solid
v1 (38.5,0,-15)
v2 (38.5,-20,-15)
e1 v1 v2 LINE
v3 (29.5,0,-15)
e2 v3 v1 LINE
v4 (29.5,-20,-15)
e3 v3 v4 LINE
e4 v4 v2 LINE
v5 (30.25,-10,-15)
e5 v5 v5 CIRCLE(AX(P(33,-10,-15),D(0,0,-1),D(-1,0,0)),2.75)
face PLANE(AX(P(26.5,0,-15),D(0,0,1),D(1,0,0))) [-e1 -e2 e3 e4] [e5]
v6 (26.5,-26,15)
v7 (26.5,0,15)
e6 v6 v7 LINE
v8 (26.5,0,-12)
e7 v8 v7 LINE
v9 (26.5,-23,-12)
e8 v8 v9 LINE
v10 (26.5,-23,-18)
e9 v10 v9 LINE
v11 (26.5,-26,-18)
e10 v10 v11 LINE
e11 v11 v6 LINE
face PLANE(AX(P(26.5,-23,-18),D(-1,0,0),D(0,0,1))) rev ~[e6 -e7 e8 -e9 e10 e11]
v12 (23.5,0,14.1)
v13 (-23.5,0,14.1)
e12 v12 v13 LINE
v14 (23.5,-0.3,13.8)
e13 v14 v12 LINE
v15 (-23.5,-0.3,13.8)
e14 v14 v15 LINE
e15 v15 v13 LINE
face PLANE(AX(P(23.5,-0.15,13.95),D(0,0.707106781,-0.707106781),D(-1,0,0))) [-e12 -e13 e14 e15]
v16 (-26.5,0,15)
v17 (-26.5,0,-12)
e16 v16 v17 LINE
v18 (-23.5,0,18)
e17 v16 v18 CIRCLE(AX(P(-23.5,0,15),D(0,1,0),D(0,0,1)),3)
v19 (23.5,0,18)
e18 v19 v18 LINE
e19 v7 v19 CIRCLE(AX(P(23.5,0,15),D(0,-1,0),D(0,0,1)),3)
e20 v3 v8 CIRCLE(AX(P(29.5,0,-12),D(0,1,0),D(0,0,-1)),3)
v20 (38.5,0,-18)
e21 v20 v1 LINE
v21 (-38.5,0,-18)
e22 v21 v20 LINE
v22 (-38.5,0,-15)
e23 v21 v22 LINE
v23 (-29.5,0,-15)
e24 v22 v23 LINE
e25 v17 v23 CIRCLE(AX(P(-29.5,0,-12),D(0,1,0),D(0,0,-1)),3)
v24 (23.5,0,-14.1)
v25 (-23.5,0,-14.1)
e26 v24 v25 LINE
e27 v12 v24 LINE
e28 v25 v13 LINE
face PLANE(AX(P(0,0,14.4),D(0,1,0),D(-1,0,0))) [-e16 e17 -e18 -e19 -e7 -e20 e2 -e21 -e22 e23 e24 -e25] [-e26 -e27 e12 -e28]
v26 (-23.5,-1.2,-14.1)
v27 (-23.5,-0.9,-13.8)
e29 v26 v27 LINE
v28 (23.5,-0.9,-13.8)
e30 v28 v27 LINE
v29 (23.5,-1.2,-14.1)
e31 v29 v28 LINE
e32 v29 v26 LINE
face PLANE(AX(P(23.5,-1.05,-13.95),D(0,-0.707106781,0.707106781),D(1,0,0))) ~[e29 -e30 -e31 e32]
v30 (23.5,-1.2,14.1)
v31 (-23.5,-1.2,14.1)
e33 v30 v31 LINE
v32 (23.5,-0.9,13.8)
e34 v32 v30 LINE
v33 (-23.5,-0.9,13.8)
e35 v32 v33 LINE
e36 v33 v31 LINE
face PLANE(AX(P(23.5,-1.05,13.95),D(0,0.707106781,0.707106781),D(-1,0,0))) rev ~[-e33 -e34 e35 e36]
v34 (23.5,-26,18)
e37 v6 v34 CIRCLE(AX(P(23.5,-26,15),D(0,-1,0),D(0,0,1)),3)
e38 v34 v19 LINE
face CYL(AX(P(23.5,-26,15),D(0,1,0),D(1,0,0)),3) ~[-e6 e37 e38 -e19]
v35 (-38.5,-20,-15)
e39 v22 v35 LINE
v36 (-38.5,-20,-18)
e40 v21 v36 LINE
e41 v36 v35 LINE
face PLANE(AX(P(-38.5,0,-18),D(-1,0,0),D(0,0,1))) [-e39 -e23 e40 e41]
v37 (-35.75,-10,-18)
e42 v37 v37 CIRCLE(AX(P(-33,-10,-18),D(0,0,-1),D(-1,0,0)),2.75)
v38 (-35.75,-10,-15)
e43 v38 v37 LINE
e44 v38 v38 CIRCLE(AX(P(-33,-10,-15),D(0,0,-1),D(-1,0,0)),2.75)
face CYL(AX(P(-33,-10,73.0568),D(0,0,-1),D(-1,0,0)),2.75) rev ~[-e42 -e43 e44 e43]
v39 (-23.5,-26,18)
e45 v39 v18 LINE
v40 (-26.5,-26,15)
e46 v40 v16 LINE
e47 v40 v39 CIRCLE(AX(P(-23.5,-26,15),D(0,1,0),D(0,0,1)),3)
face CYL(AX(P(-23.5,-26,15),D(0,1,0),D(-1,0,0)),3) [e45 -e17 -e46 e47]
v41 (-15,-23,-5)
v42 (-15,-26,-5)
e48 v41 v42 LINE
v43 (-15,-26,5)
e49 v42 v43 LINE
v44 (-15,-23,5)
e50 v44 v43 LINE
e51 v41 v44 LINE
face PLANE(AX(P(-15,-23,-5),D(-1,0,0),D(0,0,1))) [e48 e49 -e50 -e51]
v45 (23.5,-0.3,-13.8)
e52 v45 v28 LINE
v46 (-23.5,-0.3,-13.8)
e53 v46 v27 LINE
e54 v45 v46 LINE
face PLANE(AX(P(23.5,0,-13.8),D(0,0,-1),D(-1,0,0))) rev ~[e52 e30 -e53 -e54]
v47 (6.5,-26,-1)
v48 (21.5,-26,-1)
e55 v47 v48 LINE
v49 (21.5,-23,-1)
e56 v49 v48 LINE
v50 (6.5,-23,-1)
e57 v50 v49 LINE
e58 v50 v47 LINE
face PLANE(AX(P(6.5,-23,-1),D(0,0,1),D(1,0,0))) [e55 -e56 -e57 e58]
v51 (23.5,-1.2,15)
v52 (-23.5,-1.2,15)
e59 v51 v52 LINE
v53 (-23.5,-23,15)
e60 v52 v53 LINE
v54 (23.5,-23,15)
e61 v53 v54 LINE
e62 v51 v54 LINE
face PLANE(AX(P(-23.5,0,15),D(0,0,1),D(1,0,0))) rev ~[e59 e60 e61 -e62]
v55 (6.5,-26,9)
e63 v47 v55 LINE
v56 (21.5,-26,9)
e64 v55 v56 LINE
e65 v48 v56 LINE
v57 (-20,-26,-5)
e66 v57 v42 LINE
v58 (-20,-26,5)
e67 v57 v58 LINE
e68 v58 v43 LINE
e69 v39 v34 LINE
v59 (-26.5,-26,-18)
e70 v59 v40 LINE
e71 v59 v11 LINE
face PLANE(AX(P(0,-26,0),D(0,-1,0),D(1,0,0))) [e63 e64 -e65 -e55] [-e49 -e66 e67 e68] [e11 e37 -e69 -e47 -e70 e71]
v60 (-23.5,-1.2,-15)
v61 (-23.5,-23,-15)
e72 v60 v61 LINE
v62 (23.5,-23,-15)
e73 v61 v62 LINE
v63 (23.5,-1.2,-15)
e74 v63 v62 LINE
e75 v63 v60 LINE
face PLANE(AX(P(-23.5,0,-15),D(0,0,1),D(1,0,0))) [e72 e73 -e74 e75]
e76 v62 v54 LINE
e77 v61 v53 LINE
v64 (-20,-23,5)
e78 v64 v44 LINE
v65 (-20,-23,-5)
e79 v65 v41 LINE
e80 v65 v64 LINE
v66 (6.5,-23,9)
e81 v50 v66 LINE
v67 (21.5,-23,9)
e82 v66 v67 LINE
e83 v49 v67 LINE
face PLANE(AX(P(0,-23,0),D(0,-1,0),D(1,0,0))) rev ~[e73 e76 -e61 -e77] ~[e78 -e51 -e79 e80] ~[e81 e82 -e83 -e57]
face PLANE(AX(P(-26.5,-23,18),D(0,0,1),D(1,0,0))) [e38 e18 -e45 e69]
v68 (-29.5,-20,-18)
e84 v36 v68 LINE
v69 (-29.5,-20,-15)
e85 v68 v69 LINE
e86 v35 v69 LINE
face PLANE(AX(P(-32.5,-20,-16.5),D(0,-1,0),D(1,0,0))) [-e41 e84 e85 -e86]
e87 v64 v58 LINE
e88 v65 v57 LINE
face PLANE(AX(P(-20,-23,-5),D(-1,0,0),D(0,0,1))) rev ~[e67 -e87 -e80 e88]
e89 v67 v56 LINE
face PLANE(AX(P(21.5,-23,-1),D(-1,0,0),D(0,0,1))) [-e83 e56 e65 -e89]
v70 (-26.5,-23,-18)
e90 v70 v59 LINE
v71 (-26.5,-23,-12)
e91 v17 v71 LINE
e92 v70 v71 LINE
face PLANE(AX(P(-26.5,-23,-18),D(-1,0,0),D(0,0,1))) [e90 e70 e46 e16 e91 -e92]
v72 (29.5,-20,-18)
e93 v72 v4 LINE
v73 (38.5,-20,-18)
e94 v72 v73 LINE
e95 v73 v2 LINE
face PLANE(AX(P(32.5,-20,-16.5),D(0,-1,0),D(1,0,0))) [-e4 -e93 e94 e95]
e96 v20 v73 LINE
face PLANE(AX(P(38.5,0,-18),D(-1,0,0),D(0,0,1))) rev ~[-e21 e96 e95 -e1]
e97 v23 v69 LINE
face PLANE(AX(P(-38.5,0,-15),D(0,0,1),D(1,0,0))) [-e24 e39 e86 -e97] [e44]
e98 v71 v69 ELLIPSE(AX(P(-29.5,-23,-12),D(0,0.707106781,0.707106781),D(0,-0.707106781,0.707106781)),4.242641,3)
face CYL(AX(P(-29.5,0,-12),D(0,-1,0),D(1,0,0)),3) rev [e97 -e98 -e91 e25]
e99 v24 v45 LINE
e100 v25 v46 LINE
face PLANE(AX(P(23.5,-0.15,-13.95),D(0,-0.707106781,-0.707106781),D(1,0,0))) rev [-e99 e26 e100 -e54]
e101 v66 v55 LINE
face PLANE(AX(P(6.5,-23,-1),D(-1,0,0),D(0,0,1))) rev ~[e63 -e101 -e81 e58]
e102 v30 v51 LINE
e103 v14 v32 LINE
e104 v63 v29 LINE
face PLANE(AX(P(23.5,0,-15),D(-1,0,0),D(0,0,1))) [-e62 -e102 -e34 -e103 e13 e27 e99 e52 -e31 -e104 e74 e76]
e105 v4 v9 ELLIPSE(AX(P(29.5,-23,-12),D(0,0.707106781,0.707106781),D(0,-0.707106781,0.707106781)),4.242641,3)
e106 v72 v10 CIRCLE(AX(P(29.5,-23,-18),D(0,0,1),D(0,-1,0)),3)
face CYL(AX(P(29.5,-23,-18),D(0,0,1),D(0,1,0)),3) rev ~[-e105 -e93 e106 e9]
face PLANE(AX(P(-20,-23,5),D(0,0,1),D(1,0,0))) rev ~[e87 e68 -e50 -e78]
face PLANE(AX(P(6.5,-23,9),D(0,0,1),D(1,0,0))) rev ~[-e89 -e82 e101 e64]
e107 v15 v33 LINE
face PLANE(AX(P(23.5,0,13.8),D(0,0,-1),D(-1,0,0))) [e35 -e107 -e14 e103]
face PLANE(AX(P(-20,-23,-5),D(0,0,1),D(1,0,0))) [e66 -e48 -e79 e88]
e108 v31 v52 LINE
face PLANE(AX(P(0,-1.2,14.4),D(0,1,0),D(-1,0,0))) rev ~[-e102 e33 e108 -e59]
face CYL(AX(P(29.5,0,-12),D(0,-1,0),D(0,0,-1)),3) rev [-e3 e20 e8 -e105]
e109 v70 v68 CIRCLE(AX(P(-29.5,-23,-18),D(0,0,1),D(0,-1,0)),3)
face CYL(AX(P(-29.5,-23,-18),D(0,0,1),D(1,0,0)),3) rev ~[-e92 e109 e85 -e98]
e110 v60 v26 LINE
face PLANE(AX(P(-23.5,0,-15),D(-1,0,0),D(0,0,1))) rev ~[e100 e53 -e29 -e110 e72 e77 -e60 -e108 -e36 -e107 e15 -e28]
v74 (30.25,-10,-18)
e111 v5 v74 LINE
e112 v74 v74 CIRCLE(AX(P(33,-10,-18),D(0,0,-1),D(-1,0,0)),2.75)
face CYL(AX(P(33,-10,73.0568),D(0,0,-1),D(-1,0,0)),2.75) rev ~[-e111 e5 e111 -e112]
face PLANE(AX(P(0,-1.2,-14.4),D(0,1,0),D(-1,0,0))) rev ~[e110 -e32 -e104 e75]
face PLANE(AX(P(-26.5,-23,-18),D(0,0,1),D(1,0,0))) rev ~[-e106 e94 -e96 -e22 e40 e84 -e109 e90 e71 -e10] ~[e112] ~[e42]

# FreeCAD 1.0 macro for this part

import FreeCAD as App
import Part
import Sketcher
Q = App.Units.Quantity


def edges_at(feature, points):
    """Names of the edges that pass closest to the given points."""
    edges = feature.Shape.Edges
    near = lambda p: min(range(len(edges)), key=lambda i: edges[i].distToShape(Part.Vertex(*p))[0])
    return sorted({f"Edge{near(p) + 1}" for p in points})


def add_polygon(sketch, points):
    """Adds a closed chain of lines whose ends are joined by coincident constraints."""
    first, n = sketch.GeometryCount, len(points)
    for a, b in zip(points, points[1:] + points[:1]):
        sketch.addGeometry(Part.LineSegment(App.Vector(*a, 0), App.Vector(*b, 0)), False)
    for i in range(n):
        sketch.addConstraint(Sketcher.Constraint("Coincident", first + i, 2, first + (i + 1) % n, 1))

doc = App.newDocument("Part")
body = doc.addObject("PartDesign::Body", "Body")

# Sketch on XZ plane
sketch1 = doc.addObject("Sketcher::SketchObject", "Sketch")
body.addObject(sketch1)
sketch1.AttachmentSupport = (doc.XZ_Plane, [""])
sketch1.MapMode = "FlatFace"
add_polygon(sketch1, [(-26, -18), (26, -18), (26, 18), (-26, 18)])  # lines 0-3
add_polygon(sketch1, [(24, -15), (-24, -15), (-24, 15), (24, 15)])  # lines 4-7
sketch1.addConstraint(Sketcher.Constraint("Horizontal", 0))
sketch1.addConstraint(Sketcher.Constraint("Vertical", 1))
sketch1.addConstraint(Sketcher.Constraint("Horizontal", 2))
sketch1.addConstraint(Sketcher.Constraint("Vertical", 3))
sketch1.addConstraint(Sketcher.Constraint("Horizontal", 4))
sketch1.addConstraint(Sketcher.Constraint("Vertical", 5))
sketch1.addConstraint(Sketcher.Constraint("Horizontal", 6))
sketch1.addConstraint(Sketcher.Constraint("Vertical", 7))
sketch1.addConstraint(Sketcher.Constraint("Symmetric", 0, 2, 2, 2, -1, 1))
sketch1.addConstraint(Sketcher.Constraint("Symmetric", 4, 2, 6, 2, -1, 1))
sketch1.addConstraint(Sketcher.Constraint("DistanceX", 0, 1, 0, 2, Q("53 mm")))
sketch1.addConstraint(Sketcher.Constraint("DistanceX", 4, 2, 4, 1, Q("47 mm")))
sketch1.addConstraint(Sketcher.Constraint("DistanceY", 1, 1, 1, 2, Q("36 mm")))
sketch1.addConstraint(Sketcher.Constraint("DistanceY", 5, 1, 5, 2, Q("30 mm")))
pad1 = doc.addObject("PartDesign::Pad", "Pad")
body.addObject(pad1)
pad1.Profile = sketch1
pad1.Length = 23

# Sketch on XZ plane
sketch2 = doc.addObject("Sketcher::SketchObject", "Sketch001")
body.addObject(sketch2)
sketch2.AttachmentSupport = (doc.XZ_Plane, [""])
sketch2.MapMode = "FlatFace"
add_polygon(sketch2, [(-38.5, -15), (-38.5, -18), (-26.5, -18), (-26.5, -15)])  # lines 0-3
add_polygon(sketch2, [(26.5, -15), (26.5, -18), (38.5, -18), (38.5, -15)])  # lines 4-7
sketch2.addConstraint(Sketcher.Constraint("Vertical", 0))
sketch2.addConstraint(Sketcher.Constraint("Horizontal", 1))
sketch2.addConstraint(Sketcher.Constraint("Vertical", 2))
sketch2.addConstraint(Sketcher.Constraint("Horizontal", 3))
sketch2.addConstraint(Sketcher.Constraint("Vertical", 4))
sketch2.addConstraint(Sketcher.Constraint("Horizontal", 5))
sketch2.addConstraint(Sketcher.Constraint("Vertical", 6))
sketch2.addConstraint(Sketcher.Constraint("Horizontal", 7))
sketch2.addConstraint(Sketcher.Constraint("Symmetric", 1, 2, 4, 2, -2))
sketch2.addConstraint(Sketcher.Constraint("Symmetric", 3, 2, 6, 2, -2))
sketch2.addConstraint(Sketcher.Constraint("DistanceX", 1, 1, 1, 2, Q("12 mm")))
sketch2.addConstraint(Sketcher.Constraint("DistanceY", 0, 2, 0, 1, Q("3 mm")))
sketch2.addConstraint(Sketcher.Constraint("DistanceY", 0, 2, -1, 1, Q("18 mm")))
sketch2.addConstraint(Sketcher.Constraint("DistanceX", 1, 2, 4, 2, Q("53 mm")))
pad2 = doc.addObject("PartDesign::Pad", "Pad001")
body.addObject(pad2)
pad2.Profile = sketch2
pad2.Length = 20

# Sketch on XZ plane
sketch3 = doc.addObject("Sketcher::SketchObject", "Sketch002")
body.addObject(sketch3)
sketch3.AttachmentSupport = (doc.XZ_Plane, [""])
sketch3.MapMode = "FlatFace"
add_polygon(sketch3, [(23.5, 15), (23.5, 13.8), (-23.5, 13.8), (-23.5, 15)])  # lines 0-3
add_polygon(sketch3, [(23.5, -13.8), (23.5, -15), (-23.5, -15), (-23.5, -13.8)])  # lines 4-7
sketch3.addConstraint(Sketcher.Constraint("Vertical", 0))
sketch3.addConstraint(Sketcher.Constraint("Horizontal", 1))
sketch3.addConstraint(Sketcher.Constraint("Vertical", 2))
sketch3.addConstraint(Sketcher.Constraint("Horizontal", 3))
sketch3.addConstraint(Sketcher.Constraint("Vertical", 4))
sketch3.addConstraint(Sketcher.Constraint("Horizontal", 5))
sketch3.addConstraint(Sketcher.Constraint("Vertical", 6))
sketch3.addConstraint(Sketcher.Constraint("Horizontal", 7))
sketch3.addConstraint(Sketcher.Constraint("Symmetric", 2, 2, 4, 2, -1, 1))
sketch3.addConstraint(Sketcher.Constraint("Symmetric", 0, 2, 6, 2, -1, 1))
sketch3.addConstraint(Sketcher.Constraint("Vertical", 3, 2, 4, 2))
sketch3.addConstraint(Sketcher.Constraint("DistanceX", 1, 2, 1, 1, Q("47 mm")))
sketch3.addConstraint(Sketcher.Constraint("DistanceY", 0, 2, 0, 1, Q("1.2 mm")))
sketch3.addConstraint(Sketcher.Constraint("DistanceY", -1, 1, 2, 2, Q("15 mm")))
pad3 = doc.addObject("PartDesign::Pad", "Pad002")
body.addObject(pad3)
pad3.Profile = sketch3
pad3.Length = 1.2
doc.recompute()

chamfer = doc.addObject("PartDesign::Chamfer", "Chamfer")
body.addObject(chamfer)
chamfer.Base = (pad3, edges_at(pad3, [
    (0, 0, -13.8),
    (0, -1.2, -13.8),
    (0, 0, 13.8),
    (0, -1.2, 13.8),
]))
chamfer.Size = 0.3

# Sketch on XY plane
sketch4 = doc.addObject("Sketcher::SketchObject", "Sketch003")
body.addObject(sketch4)
sketch4.AttachmentSupport = (doc.XY_Plane, [""])
sketch4.MapMode = "FlatFace"
sketch4.AttachmentOffset = App.Placement(App.Vector(0, 0, -15), App.Rotation())
sketch4.addGeometry(Part.Circle(App.Vector(-33, -10, 0), App.Vector(0, 0, 1), 2.8), False)
sketch4.addConstraint(Sketcher.Constraint("Diameter", 0, Q("5.5 mm")))
sketch4.addConstraint(Sketcher.Constraint("DistanceX", 0, 3, -1, 1, Q("33 mm")))
sketch4.addConstraint(Sketcher.Constraint("DistanceY", 0, 3, -1, 1, Q("10 mm")))
doc.recompute()
hole = doc.addObject("PartDesign::Hole", "Hole")
body.addObject(hole)
hole.Profile = sketch4
hole.ThreadType = "None"
hole.Diameter = 5.5
hole.DepthType = "ThroughAll"

# Sketch on XY plane
sketch5 = doc.addObject("Sketcher::SketchObject", "Sketch004")
body.addObject(sketch5)
sketch5.AttachmentSupport = (doc.XY_Plane, [""])
sketch5.MapMode = "FlatFace"
sketch5.AttachmentOffset = App.Placement(App.Vector(0, 0, -15), App.Rotation())
sketch5.addGeometry(Part.Circle(App.Vector(33, -10, 0), App.Vector(0, 0, 1), 2.8), False)
sketch5.addConstraint(Sketcher.Constraint("Diameter", 0, Q("5.5 mm")))
sketch5.addConstraint(Sketcher.Constraint("DistanceX", -1, 1, 0, 3, Q("33 mm")))
sketch5.addConstraint(Sketcher.Constraint("DistanceY", 0, 3, -1, 1, Q("10 mm")))
doc.recompute()
hole2 = doc.addObject("PartDesign::Hole", "Hole001")
body.addObject(hole2)
hole2.Profile = sketch5
hole2.ThreadType = "None"
hole2.Diameter = 5.5
hole2.DepthType = "ThroughAll"

# Sketch on XZ plane
sketch6 = doc.addObject("Sketcher::SketchObject", "Sketch005")
body.addObject(sketch6)
sketch6.AttachmentSupport = (doc.XZ_Plane, [""])
sketch6.MapMode = "FlatFace"
sketch6.AttachmentOffset = App.Placement(App.Vector(0, 0, 23), App.Rotation())
add_polygon(sketch6, [(-26, 18), (-26, -18), (26, -18), (26, 18)])  # lines 0-3
add_polygon(sketch6, [(-15, -5), (-20, -5), (-20, 5), (-15, 5)])  # lines 4-7
add_polygon(sketch6, [(22, -1), (6, -1), (6, 9), (22, 9)])  # lines 8-11
sketch6.addConstraint(Sketcher.Constraint("Vertical", 0))
sketch6.addConstraint(Sketcher.Constraint("Horizontal", 1))
sketch6.addConstraint(Sketcher.Constraint("Vertical", 2))
sketch6.addConstraint(Sketcher.Constraint("Horizontal", 3))
sketch6.addConstraint(Sketcher.Constraint("Horizontal", 4))
sketch6.addConstraint(Sketcher.Constraint("Vertical", 5))
sketch6.addConstraint(Sketcher.Constraint("Horizontal", 6))
sketch6.addConstraint(Sketcher.Constraint("Vertical", 7))
sketch6.addConstraint(Sketcher.Constraint("Horizontal", 8))
sketch6.addConstraint(Sketcher.Constraint("Vertical", 9))
sketch6.addConstraint(Sketcher.Constraint("Horizontal", 10))
sketch6.addConstraint(Sketcher.Constraint("Vertical", 11))
sketch6.addConstraint(Sketcher.Constraint("Symmetric", 0, 2, 2, 2, -1, 1))
sketch6.addConstraint(Sketcher.Constraint("Equal", 7, 9))
sketch6.addConstraint(Sketcher.Constraint("DistanceX", 1, 1, 1, 2, Q("53 mm")))
sketch6.addConstraint(Sketcher.Constraint("DistanceX", 4, 2, 4, 1, Q("5 mm")))
sketch6.addConstraint(Sketcher.Constraint("DistanceX", 8, 2, 8, 1, Q("15 mm")))
sketch6.addConstraint(Sketcher.Constraint("DistanceY", 0, 2, 0, 1, Q("36 mm")))
sketch6.addConstraint(Sketcher.Constraint("DistanceY", 5, 1, 5, 2, Q("10 mm")))
sketch6.addConstraint(Sketcher.Constraint("DistanceX", 4, 2, -1, 1, Q("20 mm")))
sketch6.addConstraint(Sketcher.Constraint("DistanceY", 4, 2, -1, 1, Q("5 mm")))
sketch6.addConstraint(Sketcher.Constraint("DistanceY", 8, 2, -1, 1, Q("1 mm")))
sketch6.addConstraint(Sketcher.Constraint("DistanceX", 8, 2, 1, 2, Q("20 mm")))
pad4 = doc.addObject("PartDesign::Pad", "Pad003")
body.addObject(pad4)
pad4.Profile = sketch6
pad4.Length = 3
doc.recompute()

fillet = doc.addObject("PartDesign::Fillet", "Fillet")
body.addObject(fillet)
fillet.Base = (pad4, edges_at(pad4, [
    (-26.5, -10, -15),
    (-26.5, -13, 18),
    (26.5, -13, 18),
    (26.5, -10, -15),
    (26.5, -20, -16.5),
    (-26.5, -20, -16.5),
]))
fillet.Radius = 3

doc.recompute()
